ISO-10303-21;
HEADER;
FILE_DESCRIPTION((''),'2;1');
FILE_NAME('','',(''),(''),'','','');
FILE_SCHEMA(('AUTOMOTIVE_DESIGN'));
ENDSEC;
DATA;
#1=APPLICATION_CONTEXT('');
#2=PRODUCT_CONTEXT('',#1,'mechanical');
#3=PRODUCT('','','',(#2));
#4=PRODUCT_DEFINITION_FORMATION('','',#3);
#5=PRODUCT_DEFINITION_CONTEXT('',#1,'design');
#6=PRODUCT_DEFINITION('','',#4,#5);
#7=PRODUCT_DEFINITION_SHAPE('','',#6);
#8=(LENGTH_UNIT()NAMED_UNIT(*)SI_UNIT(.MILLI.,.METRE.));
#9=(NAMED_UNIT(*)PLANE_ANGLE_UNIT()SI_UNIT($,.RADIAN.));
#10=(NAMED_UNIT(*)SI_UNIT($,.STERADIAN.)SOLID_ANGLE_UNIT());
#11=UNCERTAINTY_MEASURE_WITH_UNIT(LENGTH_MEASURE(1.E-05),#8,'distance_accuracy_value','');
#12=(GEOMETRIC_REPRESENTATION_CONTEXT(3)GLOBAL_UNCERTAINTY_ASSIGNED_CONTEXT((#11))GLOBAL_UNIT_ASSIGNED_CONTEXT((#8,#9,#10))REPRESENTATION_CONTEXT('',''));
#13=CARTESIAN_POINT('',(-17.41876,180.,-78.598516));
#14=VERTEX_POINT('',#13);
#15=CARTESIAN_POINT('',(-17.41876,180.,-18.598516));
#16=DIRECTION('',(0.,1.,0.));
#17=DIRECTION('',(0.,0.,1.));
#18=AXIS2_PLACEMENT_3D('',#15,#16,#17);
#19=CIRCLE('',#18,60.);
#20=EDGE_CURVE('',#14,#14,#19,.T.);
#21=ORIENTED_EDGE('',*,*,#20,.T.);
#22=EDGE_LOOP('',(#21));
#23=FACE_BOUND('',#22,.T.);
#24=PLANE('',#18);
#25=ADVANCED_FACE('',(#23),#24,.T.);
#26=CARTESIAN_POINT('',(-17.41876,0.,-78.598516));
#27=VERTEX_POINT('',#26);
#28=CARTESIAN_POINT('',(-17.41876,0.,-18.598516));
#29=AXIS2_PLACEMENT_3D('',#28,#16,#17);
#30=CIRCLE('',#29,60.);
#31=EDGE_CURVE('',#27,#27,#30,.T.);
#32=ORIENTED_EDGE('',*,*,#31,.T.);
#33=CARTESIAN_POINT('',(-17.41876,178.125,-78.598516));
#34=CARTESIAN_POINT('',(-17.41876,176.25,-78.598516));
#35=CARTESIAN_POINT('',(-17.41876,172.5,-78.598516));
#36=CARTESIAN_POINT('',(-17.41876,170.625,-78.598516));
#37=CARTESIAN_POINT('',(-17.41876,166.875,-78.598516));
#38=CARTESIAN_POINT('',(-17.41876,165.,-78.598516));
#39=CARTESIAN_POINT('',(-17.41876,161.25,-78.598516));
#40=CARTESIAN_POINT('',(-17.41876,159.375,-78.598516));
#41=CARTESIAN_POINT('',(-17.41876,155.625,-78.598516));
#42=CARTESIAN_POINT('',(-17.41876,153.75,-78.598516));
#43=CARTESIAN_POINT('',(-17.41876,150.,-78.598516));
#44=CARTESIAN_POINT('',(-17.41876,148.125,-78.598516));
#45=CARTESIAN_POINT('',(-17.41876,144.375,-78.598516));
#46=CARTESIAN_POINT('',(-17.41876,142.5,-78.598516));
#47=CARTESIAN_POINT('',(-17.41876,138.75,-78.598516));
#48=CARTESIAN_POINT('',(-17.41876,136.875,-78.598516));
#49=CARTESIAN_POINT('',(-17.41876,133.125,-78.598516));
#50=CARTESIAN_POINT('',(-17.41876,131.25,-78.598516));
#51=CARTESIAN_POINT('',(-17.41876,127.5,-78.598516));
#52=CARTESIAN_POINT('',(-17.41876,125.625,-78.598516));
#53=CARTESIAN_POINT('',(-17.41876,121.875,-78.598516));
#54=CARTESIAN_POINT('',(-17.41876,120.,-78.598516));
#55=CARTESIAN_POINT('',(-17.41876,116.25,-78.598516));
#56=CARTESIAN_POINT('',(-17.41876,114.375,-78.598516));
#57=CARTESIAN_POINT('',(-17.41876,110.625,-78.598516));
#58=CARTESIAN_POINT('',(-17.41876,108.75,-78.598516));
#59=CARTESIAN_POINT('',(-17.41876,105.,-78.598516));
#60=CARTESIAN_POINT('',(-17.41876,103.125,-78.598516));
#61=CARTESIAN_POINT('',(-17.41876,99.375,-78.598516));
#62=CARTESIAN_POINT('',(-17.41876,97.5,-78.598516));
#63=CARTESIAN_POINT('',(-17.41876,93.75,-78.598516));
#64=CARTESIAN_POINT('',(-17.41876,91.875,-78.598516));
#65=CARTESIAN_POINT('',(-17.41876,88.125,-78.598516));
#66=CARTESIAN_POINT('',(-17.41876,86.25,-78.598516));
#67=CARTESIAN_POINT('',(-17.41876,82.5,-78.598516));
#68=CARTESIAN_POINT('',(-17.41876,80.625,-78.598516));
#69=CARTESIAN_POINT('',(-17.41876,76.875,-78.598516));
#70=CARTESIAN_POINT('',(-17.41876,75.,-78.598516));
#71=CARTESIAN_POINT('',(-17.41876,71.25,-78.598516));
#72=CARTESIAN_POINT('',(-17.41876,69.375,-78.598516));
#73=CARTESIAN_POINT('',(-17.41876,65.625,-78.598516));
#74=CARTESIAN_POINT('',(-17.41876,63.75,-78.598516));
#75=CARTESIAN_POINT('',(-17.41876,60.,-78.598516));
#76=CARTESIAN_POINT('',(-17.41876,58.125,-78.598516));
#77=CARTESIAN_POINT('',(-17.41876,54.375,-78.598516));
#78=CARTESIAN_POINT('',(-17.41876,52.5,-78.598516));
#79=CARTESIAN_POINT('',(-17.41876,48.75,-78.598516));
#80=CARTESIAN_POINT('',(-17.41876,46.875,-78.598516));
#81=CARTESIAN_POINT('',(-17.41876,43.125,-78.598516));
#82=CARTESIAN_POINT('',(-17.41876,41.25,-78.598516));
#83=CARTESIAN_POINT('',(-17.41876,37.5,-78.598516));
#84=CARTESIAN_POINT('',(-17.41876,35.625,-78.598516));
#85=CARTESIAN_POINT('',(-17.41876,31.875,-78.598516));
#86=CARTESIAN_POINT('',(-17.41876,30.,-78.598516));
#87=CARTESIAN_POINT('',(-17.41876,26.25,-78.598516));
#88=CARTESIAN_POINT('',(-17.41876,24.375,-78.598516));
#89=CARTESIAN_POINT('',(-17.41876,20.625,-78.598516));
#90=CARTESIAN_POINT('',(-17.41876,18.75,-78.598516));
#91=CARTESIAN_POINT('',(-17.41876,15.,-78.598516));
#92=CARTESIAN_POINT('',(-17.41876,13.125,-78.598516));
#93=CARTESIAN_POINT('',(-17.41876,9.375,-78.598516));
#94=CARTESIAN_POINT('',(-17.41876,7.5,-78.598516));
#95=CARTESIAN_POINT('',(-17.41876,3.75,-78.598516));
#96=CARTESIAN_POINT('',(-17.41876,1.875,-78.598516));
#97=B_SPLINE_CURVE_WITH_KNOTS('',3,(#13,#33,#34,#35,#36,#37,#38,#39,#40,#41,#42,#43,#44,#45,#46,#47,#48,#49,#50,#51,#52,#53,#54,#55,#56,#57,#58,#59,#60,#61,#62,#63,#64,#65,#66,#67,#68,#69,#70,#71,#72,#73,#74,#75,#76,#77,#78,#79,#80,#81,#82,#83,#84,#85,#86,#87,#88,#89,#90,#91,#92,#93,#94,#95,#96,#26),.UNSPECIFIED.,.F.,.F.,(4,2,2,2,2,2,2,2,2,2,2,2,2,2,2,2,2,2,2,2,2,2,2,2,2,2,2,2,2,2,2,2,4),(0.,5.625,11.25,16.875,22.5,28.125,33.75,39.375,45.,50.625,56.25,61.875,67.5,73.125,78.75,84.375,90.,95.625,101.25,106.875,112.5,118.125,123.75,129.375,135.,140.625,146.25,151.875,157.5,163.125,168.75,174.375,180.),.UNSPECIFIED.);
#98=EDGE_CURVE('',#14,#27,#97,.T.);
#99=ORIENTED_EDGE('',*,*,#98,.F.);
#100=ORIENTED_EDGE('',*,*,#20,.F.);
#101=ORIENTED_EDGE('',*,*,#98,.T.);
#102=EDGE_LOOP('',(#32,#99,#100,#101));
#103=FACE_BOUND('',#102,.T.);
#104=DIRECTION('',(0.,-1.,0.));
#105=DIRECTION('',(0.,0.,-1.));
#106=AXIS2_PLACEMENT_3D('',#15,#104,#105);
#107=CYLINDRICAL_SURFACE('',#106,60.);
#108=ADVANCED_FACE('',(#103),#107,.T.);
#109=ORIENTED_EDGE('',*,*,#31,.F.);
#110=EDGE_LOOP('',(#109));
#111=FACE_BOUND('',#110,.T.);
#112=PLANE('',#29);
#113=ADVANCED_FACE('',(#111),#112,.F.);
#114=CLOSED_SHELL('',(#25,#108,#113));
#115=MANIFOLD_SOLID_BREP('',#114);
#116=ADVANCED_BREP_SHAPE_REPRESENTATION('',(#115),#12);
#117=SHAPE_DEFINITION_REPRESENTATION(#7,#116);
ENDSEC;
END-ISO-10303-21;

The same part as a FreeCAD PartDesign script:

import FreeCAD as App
import Part
import Sketcher
Q = App.Units.Quantity

doc = App.newDocument("Part")
body = doc.addObject("PartDesign::Body", "Body")

sketch1 = body.newObject("Sketcher::SketchObject", "Sketch")
sketch1.AttachmentSupport = (doc.getObject("XZ_Plane"), [""])
sketch1.MapMode = "FlatFace"
sketch1.addGeometry(Part.Circle(App.Vector(-17, -19, 0), App.Vector(0, 0, 1), 60), False)
sketch1.addConstraint(Sketcher.Constraint("Diameter", 0, Q("120 mm")))
sketch1.addConstraint(Sketcher.Constraint("DistanceX", 0, 3, -1, 1, Q("17.41876 mm")))
sketch1.addConstraint(Sketcher.Constraint("DistanceY", 0, 3, -1, 1, Q("18.598516 mm")))
pad1 = body.newObject("PartDesign::Pad", "Pad")
pad1.Profile = sketch1
pad1.Length = 180
pad1.Reversed = True

doc.recompute()
